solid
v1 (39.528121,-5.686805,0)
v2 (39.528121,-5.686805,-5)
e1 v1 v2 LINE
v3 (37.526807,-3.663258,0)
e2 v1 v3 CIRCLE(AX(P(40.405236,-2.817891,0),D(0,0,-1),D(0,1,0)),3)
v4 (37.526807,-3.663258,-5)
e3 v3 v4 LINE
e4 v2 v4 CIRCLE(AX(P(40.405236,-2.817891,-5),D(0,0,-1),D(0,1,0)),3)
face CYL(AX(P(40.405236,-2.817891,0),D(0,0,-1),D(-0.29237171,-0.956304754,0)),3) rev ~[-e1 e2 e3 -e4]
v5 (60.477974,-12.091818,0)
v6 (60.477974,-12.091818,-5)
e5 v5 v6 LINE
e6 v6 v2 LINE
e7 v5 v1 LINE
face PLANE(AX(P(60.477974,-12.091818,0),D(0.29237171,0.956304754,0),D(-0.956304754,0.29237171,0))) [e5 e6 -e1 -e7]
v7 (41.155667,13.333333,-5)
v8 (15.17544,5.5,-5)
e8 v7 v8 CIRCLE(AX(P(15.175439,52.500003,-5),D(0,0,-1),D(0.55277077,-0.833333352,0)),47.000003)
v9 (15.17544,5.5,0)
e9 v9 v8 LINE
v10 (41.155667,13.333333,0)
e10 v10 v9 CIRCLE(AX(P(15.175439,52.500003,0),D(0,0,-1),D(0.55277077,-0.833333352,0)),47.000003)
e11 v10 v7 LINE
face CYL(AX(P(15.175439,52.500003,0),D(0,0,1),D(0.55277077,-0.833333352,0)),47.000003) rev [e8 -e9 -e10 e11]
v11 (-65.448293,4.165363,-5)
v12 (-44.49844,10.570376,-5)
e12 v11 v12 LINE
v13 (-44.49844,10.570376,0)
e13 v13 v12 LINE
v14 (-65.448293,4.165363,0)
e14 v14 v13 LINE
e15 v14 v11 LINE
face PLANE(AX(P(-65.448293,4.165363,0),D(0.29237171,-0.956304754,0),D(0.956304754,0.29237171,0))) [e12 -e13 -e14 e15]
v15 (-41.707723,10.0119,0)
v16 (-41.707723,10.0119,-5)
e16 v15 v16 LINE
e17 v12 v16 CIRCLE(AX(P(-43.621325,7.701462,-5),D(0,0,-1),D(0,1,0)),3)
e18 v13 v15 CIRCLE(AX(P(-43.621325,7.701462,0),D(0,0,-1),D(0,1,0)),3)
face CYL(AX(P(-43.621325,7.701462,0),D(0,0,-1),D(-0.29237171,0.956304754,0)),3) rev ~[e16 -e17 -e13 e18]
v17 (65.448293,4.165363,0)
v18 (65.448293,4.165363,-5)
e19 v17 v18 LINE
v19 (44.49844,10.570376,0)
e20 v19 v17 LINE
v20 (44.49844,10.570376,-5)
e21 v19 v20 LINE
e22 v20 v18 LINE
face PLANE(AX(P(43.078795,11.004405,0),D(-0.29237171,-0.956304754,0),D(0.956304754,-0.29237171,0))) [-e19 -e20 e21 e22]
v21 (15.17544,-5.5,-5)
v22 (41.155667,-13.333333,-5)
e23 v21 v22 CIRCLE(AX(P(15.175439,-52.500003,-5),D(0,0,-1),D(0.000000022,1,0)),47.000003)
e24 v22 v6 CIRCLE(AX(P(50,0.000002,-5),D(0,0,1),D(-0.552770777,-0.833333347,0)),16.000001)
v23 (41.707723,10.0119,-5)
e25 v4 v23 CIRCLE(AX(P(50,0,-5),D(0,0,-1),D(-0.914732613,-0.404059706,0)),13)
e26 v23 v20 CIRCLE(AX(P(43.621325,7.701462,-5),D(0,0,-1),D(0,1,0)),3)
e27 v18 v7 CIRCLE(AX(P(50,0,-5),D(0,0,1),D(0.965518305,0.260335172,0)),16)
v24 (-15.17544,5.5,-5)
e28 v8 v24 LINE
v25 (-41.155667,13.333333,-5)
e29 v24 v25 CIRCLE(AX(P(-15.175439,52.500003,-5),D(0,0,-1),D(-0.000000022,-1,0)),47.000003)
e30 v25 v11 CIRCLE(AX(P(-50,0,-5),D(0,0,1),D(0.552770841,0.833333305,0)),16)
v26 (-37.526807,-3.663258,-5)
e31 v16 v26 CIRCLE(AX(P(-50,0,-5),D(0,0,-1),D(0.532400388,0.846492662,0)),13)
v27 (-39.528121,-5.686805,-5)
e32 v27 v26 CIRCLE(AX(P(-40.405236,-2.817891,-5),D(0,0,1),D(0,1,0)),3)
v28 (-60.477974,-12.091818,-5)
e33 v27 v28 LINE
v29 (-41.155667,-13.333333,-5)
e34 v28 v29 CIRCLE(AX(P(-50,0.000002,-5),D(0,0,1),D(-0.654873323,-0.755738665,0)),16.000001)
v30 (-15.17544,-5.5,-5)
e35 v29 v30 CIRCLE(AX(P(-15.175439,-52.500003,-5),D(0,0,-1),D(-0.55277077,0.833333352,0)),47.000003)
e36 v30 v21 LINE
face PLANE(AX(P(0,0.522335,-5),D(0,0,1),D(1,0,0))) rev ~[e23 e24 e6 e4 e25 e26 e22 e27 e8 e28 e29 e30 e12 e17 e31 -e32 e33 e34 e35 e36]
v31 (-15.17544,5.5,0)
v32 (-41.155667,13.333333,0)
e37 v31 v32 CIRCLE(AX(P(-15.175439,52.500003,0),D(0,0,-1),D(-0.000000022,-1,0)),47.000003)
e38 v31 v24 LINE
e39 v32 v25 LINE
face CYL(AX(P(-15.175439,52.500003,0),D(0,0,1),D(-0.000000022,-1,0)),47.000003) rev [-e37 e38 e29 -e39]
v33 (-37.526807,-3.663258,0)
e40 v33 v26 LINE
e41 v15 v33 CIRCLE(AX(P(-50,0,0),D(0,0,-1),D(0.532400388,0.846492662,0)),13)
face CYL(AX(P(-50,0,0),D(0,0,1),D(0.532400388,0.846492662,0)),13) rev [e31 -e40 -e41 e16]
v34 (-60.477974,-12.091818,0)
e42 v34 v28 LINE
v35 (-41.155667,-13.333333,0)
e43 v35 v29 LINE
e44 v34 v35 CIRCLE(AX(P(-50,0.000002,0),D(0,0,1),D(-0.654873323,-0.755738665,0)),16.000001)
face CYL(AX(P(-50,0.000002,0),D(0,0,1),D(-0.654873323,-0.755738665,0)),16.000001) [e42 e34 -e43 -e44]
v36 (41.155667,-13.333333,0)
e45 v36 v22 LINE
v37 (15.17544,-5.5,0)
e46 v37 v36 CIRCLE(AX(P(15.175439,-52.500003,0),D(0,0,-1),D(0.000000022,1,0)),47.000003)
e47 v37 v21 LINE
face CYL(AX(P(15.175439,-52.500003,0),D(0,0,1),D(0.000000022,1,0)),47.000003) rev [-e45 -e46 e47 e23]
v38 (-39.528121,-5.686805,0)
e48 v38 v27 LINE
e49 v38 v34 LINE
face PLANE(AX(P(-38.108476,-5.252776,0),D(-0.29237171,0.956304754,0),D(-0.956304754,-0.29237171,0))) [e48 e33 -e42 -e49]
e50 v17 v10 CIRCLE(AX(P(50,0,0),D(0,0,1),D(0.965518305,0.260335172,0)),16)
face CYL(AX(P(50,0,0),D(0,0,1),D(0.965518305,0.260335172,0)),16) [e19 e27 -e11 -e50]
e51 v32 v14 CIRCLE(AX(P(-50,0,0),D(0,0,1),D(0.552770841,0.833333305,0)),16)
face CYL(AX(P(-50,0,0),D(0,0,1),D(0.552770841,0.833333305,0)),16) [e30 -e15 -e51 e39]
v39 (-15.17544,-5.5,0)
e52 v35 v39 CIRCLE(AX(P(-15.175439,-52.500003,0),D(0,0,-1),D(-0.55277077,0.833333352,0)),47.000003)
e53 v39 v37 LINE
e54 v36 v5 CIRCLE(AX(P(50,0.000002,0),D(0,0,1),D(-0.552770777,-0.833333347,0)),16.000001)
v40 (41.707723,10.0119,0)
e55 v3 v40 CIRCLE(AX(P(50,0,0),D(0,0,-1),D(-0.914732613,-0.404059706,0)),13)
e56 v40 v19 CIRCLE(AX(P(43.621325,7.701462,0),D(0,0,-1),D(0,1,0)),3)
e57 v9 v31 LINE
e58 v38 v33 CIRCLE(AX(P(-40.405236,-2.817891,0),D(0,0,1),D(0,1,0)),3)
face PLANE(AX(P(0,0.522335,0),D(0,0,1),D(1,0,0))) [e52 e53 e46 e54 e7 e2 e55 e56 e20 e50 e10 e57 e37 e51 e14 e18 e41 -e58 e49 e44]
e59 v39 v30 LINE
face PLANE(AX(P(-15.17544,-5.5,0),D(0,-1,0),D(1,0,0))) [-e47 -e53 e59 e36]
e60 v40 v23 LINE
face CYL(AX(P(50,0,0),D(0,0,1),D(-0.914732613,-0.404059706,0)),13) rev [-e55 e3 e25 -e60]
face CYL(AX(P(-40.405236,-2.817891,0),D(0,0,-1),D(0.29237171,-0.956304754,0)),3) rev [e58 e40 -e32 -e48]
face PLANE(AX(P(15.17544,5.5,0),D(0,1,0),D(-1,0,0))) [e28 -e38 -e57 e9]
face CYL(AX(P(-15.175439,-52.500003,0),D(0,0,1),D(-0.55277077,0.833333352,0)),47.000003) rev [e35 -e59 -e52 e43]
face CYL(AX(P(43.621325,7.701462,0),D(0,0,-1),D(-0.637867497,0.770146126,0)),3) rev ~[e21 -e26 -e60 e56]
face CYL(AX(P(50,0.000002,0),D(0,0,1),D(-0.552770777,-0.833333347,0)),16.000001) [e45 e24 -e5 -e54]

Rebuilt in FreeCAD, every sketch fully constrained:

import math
import FreeCAD as App
import Part
import Sketcher
from FreeCAD import Vector
Q = App.Units.Quantity


def edges_at(feature, points):
    """Names of the edges that pass closest to the given points."""
    edges = feature.Shape.Edges
    near = lambda p: min(range(len(edges)), key=lambda i: edges[i].distToShape(Part.Vertex(*p))[0])
    return sorted({f"Edge{near(p) + 1}" for p in points})

doc = App.newDocument("Part")
body = doc.addObject("PartDesign::Body", "Body")

sketch1 = body.newObject("Sketcher::SketchObject", "Sketch")
sketch1.AttachmentSupport = (doc.getObject("XY_Plane"), [""])
sketch1.MapMode = "FlatFace"
sketch1.addGeometry(Part.LineSegment(Vector(-38, -5, 0), Vector(-60, -12, 0)), False)
sketch1.addGeometry(Part.ArcOfCircle(Part.Circle(Vector(-50, 0, 0), Vector(0, 0, 1), 16), math.radians(-131), math.radians(-56)), False)
sketch1.addGeometry(Part.ArcOfCircle(Part.Circle(Vector(-15, -53, 0), Vector(0, 0, 1), 47), math.radians(90), math.radians(124)), False)
sketch1.addGeometry(Part.LineSegment(Vector(-15, -6, 0), Vector(15, -6, 0)), False)
sketch1.addGeometry(Part.ArcOfCircle(Part.Circle(Vector(15, -53, 0), Vector(0, 0, 1), 47), math.radians(56), math.radians(90)), False)
sketch1.addGeometry(Part.ArcOfCircle(Part.Circle(Vector(50, 0, 0), Vector(0, 0, 1), 16), math.radians(-124), math.radians(-49)), False)
sketch1.addGeometry(Part.LineSegment(Vector(60, -12, 0), Vector(38, -5, 0)), False)
sketch1.addGeometry(Part.ArcOfCircle(Part.Circle(Vector(50, 0, 0), Vector(0, 0, 1), 13), math.radians(122), math.radians(204)), False)
sketch1.addGeometry(Part.LineSegment(Vector(43, 11, 0), Vector(65, 4, 0)), False)
sketch1.addGeometry(Part.ArcOfCircle(Part.Circle(Vector(50, 0, 0), Vector(0, 0, 1), 16), math.radians(15), math.radians(124)), False)
sketch1.addGeometry(Part.ArcOfCircle(Part.Circle(Vector(15, 53, 0), Vector(0, 0, 1), 47), math.radians(-90), math.radians(-56)), False)
sketch1.addGeometry(Part.LineSegment(Vector(15, 6, 0), Vector(-15, 6, 0)), False)
sketch1.addGeometry(Part.ArcOfCircle(Part.Circle(Vector(-15, 53, 0), Vector(0, 0, 1), 47), math.radians(-124), math.radians(-90)), False)
sketch1.addGeometry(Part.ArcOfCircle(Part.Circle(Vector(-50, 0, 0), Vector(0, 0, 1), 16), math.radians(56), math.radians(165)), False)
sketch1.addGeometry(Part.LineSegment(Vector(-65, 4, 0), Vector(-43, 11, 0)), False)
sketch1.addGeometry(Part.ArcOfCircle(Part.Circle(Vector(-50, 0, 0), Vector(0, 0, 1), 13), math.radians(-24), math.radians(58)), False)
sketch1.addConstraint(Sketcher.Constraint("Coincident", 0, 2, 1, 1))
sketch1.addConstraint(Sketcher.Constraint("Tangent", 1, 2, 2, 2))
sketch1.addConstraint(Sketcher.Constraint("Tangent", 2, 1, 3, 1))
sketch1.addConstraint(Sketcher.Constraint("Tangent", 3, 2, 4, 2))
sketch1.addConstraint(Sketcher.Constraint("Tangent", 4, 1, 5, 1))
sketch1.addConstraint(Sketcher.Constraint("Coincident", 5, 2, 6, 1))
sketch1.addConstraint(Sketcher.Constraint("Coincident", 6, 2, 7, 2))
sketch1.addConstraint(Sketcher.Constraint("Coincident", 7, 1, 8, 1))
sketch1.addConstraint(Sketcher.Constraint("Coincident", 8, 2, 9, 1))
sketch1.addConstraint(Sketcher.Constraint("Tangent", 9, 2, 10, 2))
sketch1.addConstraint(Sketcher.Constraint("Tangent", 10, 1, 11, 1))
sketch1.addConstraint(Sketcher.Constraint("Tangent", 11, 2, 12, 2))
sketch1.addConstraint(Sketcher.Constraint("Tangent", 12, 1, 13, 1))
sketch1.addConstraint(Sketcher.Constraint("Coincident", 13, 2, 14, 1))
sketch1.addConstraint(Sketcher.Constraint("Coincident", 14, 2, 15, 2))
sketch1.addConstraint(Sketcher.Constraint("Coincident", 15, 1, 0, 1))
sketch1.addConstraint(Sketcher.Constraint("Horizontal", 3))
sketch1.addConstraint(Sketcher.Constraint("Horizontal", 11))
sketch1.addConstraint(Sketcher.Constraint("Coincident", 7, 3, 5, 3))
sketch1.addConstraint(Sketcher.Constraint("Coincident", 9, 3, 5, 3))
sketch1.addConstraint(Sketcher.Constraint("Coincident", 13, 3, 1, 3))
sketch1.addConstraint(Sketcher.Constraint("Coincident", 15, 3, 1, 3))
sketch1.addConstraint(Sketcher.Constraint("Equal", 2, 4))
sketch1.addConstraint(Sketcher.Constraint("Equal", 1, 5))
sketch1.addConstraint(Sketcher.Constraint("Equal", 5, 9))
sketch1.addConstraint(Sketcher.Constraint("Equal", 4, 10))
sketch1.addConstraint(Sketcher.Constraint("Equal", 10, 12))
sketch1.addConstraint(Sketcher.Constraint("Equal", 9, 13))
sketch1.addConstraint(Sketcher.Constraint("Equal", 7, 15))
sketch1.addConstraint(Sketcher.Constraint("Symmetric", 1, 3, 5, 3, -1, 1))
sketch1.addConstraint(Sketcher.Constraint("Symmetric", 0, 2, 5, 2, -2))
sketch1.addConstraint(Sketcher.Constraint("Parallel", 6, 8))
sketch1.addConstraint(Sketcher.Constraint("Parallel", 0, 14))
sketch1.addConstraint(Sketcher.Constraint("Horizontal", 8, 2, 13, 2))
sketch1.addConstraint(Sketcher.Constraint("Horizontal", 7, 1, 14, 2))
sketch1.addConstraint(Sketcher.Constraint("Vertical", 4, 3, 10, 3))
sketch1.addConstraint(Sketcher.Constraint("Equal", 6, 8))
sketch1.addConstraint(Sketcher.Constraint("Radius", 1, Q("16.000001 mm")))
sketch1.addConstraint(Sketcher.Constraint("Radius", 7, Q("13 mm")))
sketch1.addConstraint(Sketcher.Constraint("Angle", 0, Q("-163 deg")))
sketch1.addConstraint(Sketcher.Constraint("DistanceX", 1, 3, -1, 1, Q("50 mm")))
sketch1.addConstraint(Sketcher.Constraint("DistanceY", 3, 2, 10, 1, Q("11 mm")))
sketch1.addConstraint(Sketcher.Constraint("DistanceY", 5, 3, 10, 3, Q("52.500002 mm")))
sketch1.addConstraint(Sketcher.Constraint("Distance", 0, Q("23.3916 mm")))
pad1 = body.newObject("PartDesign::Pad", "Pad")
pad1.Profile = sketch1
pad1.Length = 5
pad1.Reversed = True
doc.recompute()

fillet = body.newObject("PartDesign::Fillet", "Fillet")
fillet.Base = (pad1, edges_at(pad1, [
    (-38.108, -5.253, -2.5),
    (-43.079, 11.004, -2.5),
    (43.079, 11.004, -2.5),
    (38.108, -5.253, -2.5),
]))
fillet.Radius = 3

doc.recompute()
